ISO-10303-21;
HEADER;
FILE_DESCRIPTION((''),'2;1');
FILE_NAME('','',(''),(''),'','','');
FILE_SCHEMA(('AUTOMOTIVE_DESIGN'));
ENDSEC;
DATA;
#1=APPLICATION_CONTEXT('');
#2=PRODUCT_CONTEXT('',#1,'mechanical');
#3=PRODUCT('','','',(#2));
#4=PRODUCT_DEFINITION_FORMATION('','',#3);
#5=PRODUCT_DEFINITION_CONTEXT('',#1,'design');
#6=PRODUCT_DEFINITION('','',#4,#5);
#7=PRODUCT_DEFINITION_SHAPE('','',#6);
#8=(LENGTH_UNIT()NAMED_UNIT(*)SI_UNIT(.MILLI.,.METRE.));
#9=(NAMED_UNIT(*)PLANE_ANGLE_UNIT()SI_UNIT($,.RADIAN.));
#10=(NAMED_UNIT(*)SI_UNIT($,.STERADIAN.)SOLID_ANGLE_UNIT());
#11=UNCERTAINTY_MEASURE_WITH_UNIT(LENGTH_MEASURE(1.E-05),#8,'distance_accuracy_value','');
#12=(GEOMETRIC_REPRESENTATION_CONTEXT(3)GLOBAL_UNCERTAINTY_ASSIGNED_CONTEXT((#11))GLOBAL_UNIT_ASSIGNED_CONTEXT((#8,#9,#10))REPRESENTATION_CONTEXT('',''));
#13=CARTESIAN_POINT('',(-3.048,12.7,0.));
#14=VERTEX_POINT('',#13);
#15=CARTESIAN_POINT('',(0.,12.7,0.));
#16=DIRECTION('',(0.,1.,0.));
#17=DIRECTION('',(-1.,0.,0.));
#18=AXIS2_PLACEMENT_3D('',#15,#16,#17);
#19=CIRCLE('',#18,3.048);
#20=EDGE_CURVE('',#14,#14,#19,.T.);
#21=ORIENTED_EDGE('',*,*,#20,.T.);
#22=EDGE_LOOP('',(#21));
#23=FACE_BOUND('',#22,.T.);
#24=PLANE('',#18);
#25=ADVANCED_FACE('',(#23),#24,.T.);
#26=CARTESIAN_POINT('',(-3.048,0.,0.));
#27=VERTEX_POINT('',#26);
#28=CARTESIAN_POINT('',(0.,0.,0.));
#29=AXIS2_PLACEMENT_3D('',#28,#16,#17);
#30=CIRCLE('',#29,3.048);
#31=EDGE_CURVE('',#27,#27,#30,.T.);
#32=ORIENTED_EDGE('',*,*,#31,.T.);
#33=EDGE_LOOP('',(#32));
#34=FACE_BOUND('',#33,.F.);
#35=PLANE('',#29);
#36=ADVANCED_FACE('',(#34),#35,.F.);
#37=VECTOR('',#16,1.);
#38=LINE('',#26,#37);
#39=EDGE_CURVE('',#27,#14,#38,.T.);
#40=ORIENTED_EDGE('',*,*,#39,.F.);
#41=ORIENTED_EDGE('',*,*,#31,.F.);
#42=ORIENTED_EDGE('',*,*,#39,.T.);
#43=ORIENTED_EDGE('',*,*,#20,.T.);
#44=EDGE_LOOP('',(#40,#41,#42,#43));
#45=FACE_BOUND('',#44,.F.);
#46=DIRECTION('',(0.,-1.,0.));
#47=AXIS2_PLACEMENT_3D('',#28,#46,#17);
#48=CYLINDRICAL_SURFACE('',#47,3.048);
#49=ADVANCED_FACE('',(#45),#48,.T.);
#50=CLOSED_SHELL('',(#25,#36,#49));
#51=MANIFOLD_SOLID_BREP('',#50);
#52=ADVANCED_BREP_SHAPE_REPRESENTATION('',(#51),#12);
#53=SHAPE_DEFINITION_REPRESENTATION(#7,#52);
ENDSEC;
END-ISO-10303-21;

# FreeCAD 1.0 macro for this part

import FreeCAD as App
import Part
import Sketcher
Q = App.Units.Quantity

doc = App.newDocument("Part")
params = doc.addObject("Spreadsheet::Sheet", "Params")
for row, (alias, value) in enumerate([
    ("sketch1_diameter", "0.24 in"),
    ("pad1_length", "0.5 in"),
], start=1):
    params.set(f"A{row}", alias)
    params.set(f"B{row}", "=" + value)
    params.setAlias(f"B{row}", alias)

body = doc.addObject("PartDesign::Body", "Body")

sketch1 = doc.addObject("Sketcher::SketchObject", "Sketch")
body.addObject(sketch1)
sketch1.AttachmentSupport = (doc.XZ_Plane, [""])
sketch1.MapMode = "FlatFace"
sketch1.addGeometry(Part.Circle(App.Vector(0, 0, 0), App.Vector(0, 0, 1), 3), False)
sketch1.addConstraint([
    Sketcher.Constraint("Coincident", 0, 3, -1, 1),
    Sketcher.Constraint("Diameter", 0, Q("0.24 in")),
])
sketch1.setExpression("Constraints[1]", "Params.sketch1_diameter")
pad1 = doc.addObject("PartDesign::Pad", "Pad")
body.addObject(pad1)
pad1.Profile = sketch1
pad1.setExpression("Length", "Params.pad1_length")
pad1.Reversed = True

doc.recompute()
